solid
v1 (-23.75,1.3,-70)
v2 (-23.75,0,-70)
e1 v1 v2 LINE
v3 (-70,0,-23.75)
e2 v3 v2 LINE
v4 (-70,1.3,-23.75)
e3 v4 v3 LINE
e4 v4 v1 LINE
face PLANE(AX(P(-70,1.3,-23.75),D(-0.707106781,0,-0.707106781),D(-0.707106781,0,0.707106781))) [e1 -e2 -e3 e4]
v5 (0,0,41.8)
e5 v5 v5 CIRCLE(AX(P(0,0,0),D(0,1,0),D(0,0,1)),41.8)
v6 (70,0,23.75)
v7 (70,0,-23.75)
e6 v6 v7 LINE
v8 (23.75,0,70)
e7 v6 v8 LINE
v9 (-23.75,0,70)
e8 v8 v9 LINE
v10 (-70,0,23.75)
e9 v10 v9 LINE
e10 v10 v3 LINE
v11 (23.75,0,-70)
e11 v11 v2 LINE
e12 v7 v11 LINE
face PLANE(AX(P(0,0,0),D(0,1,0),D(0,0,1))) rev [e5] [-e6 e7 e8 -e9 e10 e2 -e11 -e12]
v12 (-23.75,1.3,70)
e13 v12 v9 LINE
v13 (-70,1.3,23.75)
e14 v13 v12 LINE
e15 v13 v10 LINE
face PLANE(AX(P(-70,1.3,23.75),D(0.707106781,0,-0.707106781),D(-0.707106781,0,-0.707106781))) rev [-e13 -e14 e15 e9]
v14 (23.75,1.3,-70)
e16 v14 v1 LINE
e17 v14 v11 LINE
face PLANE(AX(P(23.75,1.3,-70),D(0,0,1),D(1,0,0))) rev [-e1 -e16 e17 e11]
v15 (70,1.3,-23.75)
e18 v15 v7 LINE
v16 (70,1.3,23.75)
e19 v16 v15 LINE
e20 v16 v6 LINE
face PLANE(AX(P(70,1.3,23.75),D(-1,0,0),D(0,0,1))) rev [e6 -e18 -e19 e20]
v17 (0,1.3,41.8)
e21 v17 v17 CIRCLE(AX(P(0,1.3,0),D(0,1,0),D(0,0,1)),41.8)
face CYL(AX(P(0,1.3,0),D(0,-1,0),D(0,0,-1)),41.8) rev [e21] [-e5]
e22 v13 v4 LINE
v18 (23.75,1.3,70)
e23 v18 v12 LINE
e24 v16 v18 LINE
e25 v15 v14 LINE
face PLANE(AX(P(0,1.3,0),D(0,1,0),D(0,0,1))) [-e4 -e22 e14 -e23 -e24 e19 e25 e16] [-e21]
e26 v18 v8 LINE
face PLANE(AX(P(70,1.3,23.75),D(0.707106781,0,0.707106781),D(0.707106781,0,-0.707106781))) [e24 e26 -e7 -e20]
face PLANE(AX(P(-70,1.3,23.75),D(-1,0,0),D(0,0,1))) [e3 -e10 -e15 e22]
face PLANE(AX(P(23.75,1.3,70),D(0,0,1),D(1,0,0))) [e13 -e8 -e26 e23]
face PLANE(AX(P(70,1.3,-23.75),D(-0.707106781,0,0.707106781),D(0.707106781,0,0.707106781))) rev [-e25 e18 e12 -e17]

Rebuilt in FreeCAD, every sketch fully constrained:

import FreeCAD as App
import Part
import Sketcher

V = App.Vector
Q = App.Units.Quantity

doc = App.newDocument("Part")
body = doc.addObject("PartDesign::Body", "Body")

# Sketch on XZ plane
sketch1 = body.newObject("Sketcher::SketchObject", "Sketch")
sketch1.AttachmentSupport = (doc.getObject("XZ_Plane"), [""])
sketch1.MapMode = "FlatFace"
sketch1.addGeometry([
    Part.LineSegment(V(24, -70, 0), V(-24, -70, 0)),  # 0
    Part.LineSegment(V(-24, -70, 0), V(-70, -24, 0)),  # 1
    Part.LineSegment(V(-70, -24, 0), V(-70, 24, 0)),  # 2
    Part.LineSegment(V(-70, 24, 0), V(-24, 70, 0)),  # 3
    Part.LineSegment(V(-24, 70, 0), V(24, 70, 0)),  # 4
    Part.LineSegment(V(24, 70, 0), V(70, 24, 0)),  # 5
    Part.LineSegment(V(70, 24, 0), V(70, -24, 0)),  # 6
    Part.LineSegment(V(70, -24, 0), V(24, -70, 0)),  # 7
    Part.Circle(V(0, 0, 0), V(0, 0, 1), 42),  # 8
], False)
sketch1.addConstraint([
    Sketcher.Constraint("Coincident", 0, 2, 1, 1),
    Sketcher.Constraint("Coincident", 1, 2, 2, 1),
    Sketcher.Constraint("Coincident", 2, 2, 3, 1),
    Sketcher.Constraint("Coincident", 3, 2, 4, 1),
    Sketcher.Constraint("Coincident", 4, 2, 5, 1),
    Sketcher.Constraint("Coincident", 5, 2, 6, 1),
    Sketcher.Constraint("Coincident", 6, 2, 7, 1),
    Sketcher.Constraint("Coincident", 7, 2, 0, 1),
    Sketcher.Constraint("Horizontal", 0),
    Sketcher.Constraint("Vertical", 2),
    Sketcher.Constraint("Horizontal", 4),
    Sketcher.Constraint("Vertical", 6),
    Sketcher.Constraint("Coincident", 8, 3, -1, 1),
    Sketcher.Constraint("Symmetric", 0, 2, 4, 2, -1, 1),
    Sketcher.Constraint("Symmetric", 1, 2, 5, 2, -1, 1),
    Sketcher.Constraint("Perpendicular", 1, 3),
    Sketcher.Constraint("Perpendicular", 5, 7),
    Sketcher.Constraint("Horizontal", 2, 2, 5, 2),
    Sketcher.Constraint("Horizontal", 1, 2, 6, 2),
    Sketcher.Constraint("Vertical", 0, 2, 3, 2),
    Sketcher.Constraint("Equal", 4, 2),
    Sketcher.Constraint("Diameter", 8, Q("83.6 mm")),
    Sketcher.Constraint("DistanceX", 0, 2, 0, 1, Q("47.5 mm")),
    Sketcher.Constraint("DistanceY", 0, 2, -1, 1, Q("70 mm")),
])
pad1 = body.newObject("PartDesign::Pad", "Pad")
pad1.Profile = sketch1
pad1.Length = 1.3
pad1.Reversed = True

doc.recompute()
